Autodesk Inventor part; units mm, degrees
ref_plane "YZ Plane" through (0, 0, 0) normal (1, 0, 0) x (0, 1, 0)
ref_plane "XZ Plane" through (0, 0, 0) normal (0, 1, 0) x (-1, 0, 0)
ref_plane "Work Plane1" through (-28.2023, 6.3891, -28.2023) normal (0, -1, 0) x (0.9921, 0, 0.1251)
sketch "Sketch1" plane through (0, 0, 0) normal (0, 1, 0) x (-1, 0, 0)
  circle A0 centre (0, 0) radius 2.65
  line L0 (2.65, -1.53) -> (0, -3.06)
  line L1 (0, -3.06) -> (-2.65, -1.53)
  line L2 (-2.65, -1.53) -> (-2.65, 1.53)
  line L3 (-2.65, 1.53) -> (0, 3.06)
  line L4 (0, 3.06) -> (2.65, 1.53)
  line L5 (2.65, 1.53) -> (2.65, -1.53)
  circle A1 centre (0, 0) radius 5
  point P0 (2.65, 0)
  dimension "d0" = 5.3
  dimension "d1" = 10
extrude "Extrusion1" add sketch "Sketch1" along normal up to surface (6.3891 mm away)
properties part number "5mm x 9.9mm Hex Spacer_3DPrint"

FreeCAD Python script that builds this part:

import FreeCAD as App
import Part
import Sketcher
from FreeCAD import Vector
Q = App.Units.Quantity


def add_polygon(sketch, points):
    """Adds a closed chain of lines whose ends are joined by coincident constraints."""
    first, n = sketch.GeometryCount, len(points)
    for a, b in zip(points, points[1:] + points[:1]):
        sketch.addGeometry(Part.LineSegment(App.Vector(*a, 0), App.Vector(*b, 0)), False)
    for i in range(n):
        sketch.addConstraint(Sketcher.Constraint("Coincident", first + i, 2, first + (i + 1) % n, 1))

doc = App.newDocument("Part")
body = doc.addObject("PartDesign::Body", "Body")

# Sketch on XZ plane
sketch1 = body.newObject("Sketcher::SketchObject", "Sketch")
sketch1.AttachmentSupport = (doc.getObject("XZ_Plane"), [""])
sketch1.MapMode = "FlatFace"
sketch1.addGeometry(Part.Circle(Vector(0, 0, 0), Vector(0, 0, 1), 5), False)  # 0
add_polygon(sketch1, [(-2.6, 1.5), (-2.6, -1.5), (0, -3.1), (2.6, -1.5), (2.6, 1.5), (0, 3.1)])  # lines 1-6
sketch1.addConstraint([
    Sketcher.Constraint("Vertical", 1),
    Sketcher.Constraint("Vertical", 4),
    Sketcher.Constraint("Coincident", 0, 3, -1, 1),
    Sketcher.Constraint("Symmetric", 1, 2, 4, 2, -1, 1),
    Sketcher.Constraint("Symmetric", 2, 2, 5, 2, -1, 1),
    Sketcher.Constraint("PointOnObject", 2, 2, -2),
    Sketcher.Constraint("Parallel", 3, 6),
    Sketcher.Constraint("Horizontal", 1, 2, 3, 2),
    Sketcher.Constraint("Diameter", 0, 10.0),
    Sketcher.Constraint("DistanceX", 1, 2, 3, 2, 5.3),
    Sketcher.Constraint("Angle", 2, Q("-30.0004 deg")),
    Sketcher.Constraint("DistanceY", 1, 2, 1, 1, 3.06),
])
pad1 = body.newObject("PartDesign::Pad", "Pad")
pad1.Profile = sketch1
pad1.Length = 6.3891
pad1.Reversed = True

doc.recompute()
